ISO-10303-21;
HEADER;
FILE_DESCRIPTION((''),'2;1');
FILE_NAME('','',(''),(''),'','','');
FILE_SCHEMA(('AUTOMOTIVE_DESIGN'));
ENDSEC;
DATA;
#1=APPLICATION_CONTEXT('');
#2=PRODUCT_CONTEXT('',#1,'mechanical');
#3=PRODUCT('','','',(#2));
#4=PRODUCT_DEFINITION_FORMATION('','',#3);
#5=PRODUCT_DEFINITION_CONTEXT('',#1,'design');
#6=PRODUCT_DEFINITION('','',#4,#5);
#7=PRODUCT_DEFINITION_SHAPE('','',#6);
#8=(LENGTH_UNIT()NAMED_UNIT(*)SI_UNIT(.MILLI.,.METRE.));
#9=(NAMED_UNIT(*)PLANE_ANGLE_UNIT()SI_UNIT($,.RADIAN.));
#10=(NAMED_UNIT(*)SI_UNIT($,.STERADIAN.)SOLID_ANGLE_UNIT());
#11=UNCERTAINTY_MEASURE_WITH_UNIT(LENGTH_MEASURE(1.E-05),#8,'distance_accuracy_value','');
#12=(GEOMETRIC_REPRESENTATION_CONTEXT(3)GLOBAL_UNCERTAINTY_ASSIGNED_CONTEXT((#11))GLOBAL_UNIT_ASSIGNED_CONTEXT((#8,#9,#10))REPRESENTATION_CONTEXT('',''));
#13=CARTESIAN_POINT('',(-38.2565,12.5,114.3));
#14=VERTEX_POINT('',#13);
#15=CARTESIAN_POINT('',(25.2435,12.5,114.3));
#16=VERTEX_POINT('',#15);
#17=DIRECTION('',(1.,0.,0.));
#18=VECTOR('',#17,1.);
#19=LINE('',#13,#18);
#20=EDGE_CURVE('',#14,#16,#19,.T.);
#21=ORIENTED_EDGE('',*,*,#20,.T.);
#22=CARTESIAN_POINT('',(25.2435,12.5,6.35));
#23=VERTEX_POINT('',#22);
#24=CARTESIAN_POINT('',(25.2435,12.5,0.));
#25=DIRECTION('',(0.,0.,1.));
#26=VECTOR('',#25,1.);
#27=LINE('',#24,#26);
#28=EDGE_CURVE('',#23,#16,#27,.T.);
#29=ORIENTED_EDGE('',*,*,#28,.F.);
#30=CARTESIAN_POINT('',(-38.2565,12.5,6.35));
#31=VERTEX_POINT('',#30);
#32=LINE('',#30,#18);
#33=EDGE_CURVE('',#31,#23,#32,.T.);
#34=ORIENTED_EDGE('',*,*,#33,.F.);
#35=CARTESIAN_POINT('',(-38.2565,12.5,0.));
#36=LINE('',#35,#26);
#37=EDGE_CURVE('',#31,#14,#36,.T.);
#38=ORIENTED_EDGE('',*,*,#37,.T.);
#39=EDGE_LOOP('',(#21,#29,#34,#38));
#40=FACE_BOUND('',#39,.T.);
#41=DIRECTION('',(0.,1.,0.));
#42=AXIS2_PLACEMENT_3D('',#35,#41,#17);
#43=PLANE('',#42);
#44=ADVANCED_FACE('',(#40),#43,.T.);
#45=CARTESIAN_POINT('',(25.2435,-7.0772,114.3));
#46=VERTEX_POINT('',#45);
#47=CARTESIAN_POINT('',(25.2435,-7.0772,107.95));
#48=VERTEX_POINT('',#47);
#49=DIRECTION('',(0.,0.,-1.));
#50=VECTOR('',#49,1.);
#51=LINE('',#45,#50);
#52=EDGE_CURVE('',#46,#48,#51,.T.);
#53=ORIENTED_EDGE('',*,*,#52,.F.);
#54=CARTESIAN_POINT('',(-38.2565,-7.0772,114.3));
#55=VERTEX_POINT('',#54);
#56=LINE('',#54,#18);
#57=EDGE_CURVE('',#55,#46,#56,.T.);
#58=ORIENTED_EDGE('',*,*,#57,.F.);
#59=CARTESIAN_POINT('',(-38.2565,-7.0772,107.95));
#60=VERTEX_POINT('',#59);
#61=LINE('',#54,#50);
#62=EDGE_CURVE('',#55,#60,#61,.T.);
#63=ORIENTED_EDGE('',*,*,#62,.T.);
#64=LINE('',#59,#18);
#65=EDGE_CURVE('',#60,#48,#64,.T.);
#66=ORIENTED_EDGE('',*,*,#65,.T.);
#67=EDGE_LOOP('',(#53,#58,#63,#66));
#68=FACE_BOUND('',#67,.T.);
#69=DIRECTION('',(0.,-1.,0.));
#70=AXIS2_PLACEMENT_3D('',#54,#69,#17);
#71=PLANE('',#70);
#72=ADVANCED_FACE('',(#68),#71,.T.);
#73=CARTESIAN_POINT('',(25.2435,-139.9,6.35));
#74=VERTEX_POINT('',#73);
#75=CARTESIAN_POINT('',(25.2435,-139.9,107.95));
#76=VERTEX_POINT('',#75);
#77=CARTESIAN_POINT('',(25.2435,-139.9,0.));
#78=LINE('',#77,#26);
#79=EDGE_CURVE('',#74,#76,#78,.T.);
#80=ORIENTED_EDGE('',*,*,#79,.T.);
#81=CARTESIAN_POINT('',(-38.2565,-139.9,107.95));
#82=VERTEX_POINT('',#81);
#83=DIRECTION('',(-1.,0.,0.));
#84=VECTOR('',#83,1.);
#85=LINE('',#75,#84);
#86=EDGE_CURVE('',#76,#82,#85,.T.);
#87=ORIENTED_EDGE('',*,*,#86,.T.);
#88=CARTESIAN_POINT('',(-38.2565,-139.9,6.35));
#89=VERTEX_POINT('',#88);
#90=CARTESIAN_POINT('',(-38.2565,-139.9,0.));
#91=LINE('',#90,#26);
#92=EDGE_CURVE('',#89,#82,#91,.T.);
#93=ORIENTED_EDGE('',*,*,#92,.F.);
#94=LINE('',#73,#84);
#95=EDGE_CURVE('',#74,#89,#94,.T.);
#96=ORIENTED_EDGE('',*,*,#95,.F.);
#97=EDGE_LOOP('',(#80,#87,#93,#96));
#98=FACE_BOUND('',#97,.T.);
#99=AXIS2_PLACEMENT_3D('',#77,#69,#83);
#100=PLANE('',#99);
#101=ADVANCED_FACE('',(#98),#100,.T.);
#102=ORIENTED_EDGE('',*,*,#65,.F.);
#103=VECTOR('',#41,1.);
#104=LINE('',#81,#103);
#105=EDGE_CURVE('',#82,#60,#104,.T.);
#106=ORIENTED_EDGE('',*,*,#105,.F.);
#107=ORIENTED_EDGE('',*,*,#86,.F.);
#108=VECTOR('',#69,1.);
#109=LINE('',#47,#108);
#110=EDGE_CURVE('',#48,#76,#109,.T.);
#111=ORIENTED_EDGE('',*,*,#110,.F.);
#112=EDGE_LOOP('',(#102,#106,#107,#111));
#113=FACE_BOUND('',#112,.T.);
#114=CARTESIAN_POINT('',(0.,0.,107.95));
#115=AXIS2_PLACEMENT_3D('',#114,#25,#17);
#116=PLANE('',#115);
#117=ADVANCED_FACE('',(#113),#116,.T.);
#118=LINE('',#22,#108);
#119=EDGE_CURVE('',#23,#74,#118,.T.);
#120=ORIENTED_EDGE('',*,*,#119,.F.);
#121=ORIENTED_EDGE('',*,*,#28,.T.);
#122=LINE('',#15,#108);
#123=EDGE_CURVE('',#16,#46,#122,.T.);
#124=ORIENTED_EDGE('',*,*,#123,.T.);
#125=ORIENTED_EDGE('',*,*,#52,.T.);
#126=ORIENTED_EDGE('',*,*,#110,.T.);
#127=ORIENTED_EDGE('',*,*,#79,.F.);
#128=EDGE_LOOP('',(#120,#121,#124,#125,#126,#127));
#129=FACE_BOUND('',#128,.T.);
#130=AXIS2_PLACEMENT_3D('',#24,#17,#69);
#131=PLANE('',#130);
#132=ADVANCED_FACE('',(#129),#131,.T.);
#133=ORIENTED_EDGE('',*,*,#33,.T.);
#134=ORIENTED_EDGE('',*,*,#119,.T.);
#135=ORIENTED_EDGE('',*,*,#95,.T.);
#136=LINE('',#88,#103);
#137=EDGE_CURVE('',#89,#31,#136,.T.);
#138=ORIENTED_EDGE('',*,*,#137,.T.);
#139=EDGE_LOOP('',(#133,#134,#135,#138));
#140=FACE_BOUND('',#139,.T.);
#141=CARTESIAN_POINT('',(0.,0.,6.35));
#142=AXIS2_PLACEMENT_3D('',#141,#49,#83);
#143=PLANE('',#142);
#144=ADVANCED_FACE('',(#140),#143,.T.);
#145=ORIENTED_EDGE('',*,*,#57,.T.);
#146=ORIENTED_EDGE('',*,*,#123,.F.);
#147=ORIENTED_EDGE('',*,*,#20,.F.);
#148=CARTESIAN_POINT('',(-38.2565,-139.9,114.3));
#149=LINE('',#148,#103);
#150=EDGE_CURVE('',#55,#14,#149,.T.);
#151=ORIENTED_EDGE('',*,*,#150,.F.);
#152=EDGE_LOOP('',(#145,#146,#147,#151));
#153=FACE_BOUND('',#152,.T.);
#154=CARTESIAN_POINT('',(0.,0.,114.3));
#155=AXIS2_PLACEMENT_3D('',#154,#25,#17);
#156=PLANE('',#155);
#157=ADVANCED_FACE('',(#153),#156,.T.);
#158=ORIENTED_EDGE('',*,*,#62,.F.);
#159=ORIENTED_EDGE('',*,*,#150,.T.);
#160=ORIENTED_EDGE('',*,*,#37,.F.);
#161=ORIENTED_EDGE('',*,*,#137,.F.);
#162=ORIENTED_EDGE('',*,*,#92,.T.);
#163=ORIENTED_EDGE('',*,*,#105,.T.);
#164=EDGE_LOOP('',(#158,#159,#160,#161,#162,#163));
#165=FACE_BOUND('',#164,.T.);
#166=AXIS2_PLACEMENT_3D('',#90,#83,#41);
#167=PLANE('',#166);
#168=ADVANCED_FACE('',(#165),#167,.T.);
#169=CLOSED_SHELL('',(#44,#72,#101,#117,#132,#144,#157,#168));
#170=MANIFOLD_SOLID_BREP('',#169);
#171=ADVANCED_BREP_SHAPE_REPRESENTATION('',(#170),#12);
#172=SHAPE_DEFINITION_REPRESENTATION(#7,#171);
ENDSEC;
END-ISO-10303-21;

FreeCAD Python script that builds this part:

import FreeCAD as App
import Part
import Sketcher
Q = App.Units.Quantity


def add_polygon(sketch, points):
    """Adds a closed chain of lines whose ends are joined by coincident constraints."""
    first, n = sketch.GeometryCount, len(points)
    for a, b in zip(points, points[1:] + points[:1]):
        sketch.addGeometry(Part.LineSegment(App.Vector(*a, 0), App.Vector(*b, 0)), False)
    for i in range(n):
        sketch.addConstraint(Sketcher.Constraint("Coincident", first + i, 2, first + (i + 1) % n, 1))

doc = App.newDocument("Part")
params = doc.addObject("Spreadsheet::Sheet", "Params")
for row, (alias, value) in enumerate([
    ("sketch1_height", "6 in"),
    ("sketch1_width", "2.5 in"),
    ("pad1_length", "4.5 in"),
    ("sketch2_width", "2.5 in"),
    ("pocket1_length", "0.25 in"),
    ("sketch3_height", "6 in"),
    ("sketch3_width", "2.5 in"),
    ("pocket2_length", "0.25 in"),
], start=1):
    params.set(f"A{row}", alias)
    params.set(f"B{row}", "=" + value)
    params.setAlias(f"B{row}", alias)

body = doc.addObject("PartDesign::Body", "Body")

# Sketch on XY plane
sketch1 = body.newObject("Sketcher::SketchObject", "Sketch")
sketch1.AttachmentSupport = (doc.getObject("XY_Plane"), [""])
sketch1.MapMode = "FlatFace"
add_polygon(sketch1, [(25.2435, 12.5), (-38.2565, 12.5), (-38.2565, -139.9), (25.2435, -139.9)])  # lines 0-3
sketch1.addConstraint(Sketcher.Constraint("Horizontal", 0))
sketch1.addConstraint(Sketcher.Constraint("Vertical", 1))
sketch1.addConstraint(Sketcher.Constraint("Horizontal", 2))
sketch1.addConstraint(Sketcher.Constraint("Vertical", 3))
sketch1.addConstraint(Sketcher.Constraint("DistanceY", 1, 2, 1, 1, Q("6 in")))
sketch1.addConstraint(Sketcher.Constraint("DistanceX", 0, 2, 0, 1, Q("2.5 in")))
sketch1.addConstraint(Sketcher.Constraint("DistanceX", 0, 2, -1, 1, Q("38.2565 mm")))
sketch1.addConstraint(Sketcher.Constraint("DistanceY", -1, 1, 0, 2, Q("12.5 mm")))
sketch1.setExpression("Constraints[8]", "Params.sketch1_height")
sketch1.setExpression("Constraints[9]", "Params.sketch1_width")
pad1 = body.newObject("PartDesign::Pad", "Pad")
pad1.Profile = sketch1
pad1.setExpression("Length", "Params.pad1_length")

# Sketch on XY plane
sketch2 = body.newObject("Sketcher::SketchObject", "Sketch001")
sketch2.AttachmentSupport = (doc.getObject("XY_Plane"), [""])
sketch2.MapMode = "FlatFace"
sketch2.AttachmentOffset = App.Placement(App.Vector(0, 0, 4.5 * 25.4), App.Rotation())
add_polygon(sketch2, [(-38.2565, -7.0772), (-38.2565, -139.9), (25.2435, -139.9), (25.2435, -7.0772)])  # lines 0-3
sketch2.addConstraint(Sketcher.Constraint("Vertical", 0))
sketch2.addConstraint(Sketcher.Constraint("Horizontal", 1))
sketch2.addConstraint(Sketcher.Constraint("Vertical", 2))
sketch2.addConstraint(Sketcher.Constraint("Horizontal", 3))
sketch2.addConstraint(Sketcher.Constraint("DistanceX", 1, 1, 1, 2, Q("2.5 in")))
sketch2.addConstraint(Sketcher.Constraint("DistanceY", 0, 2, 0, 1, Q("132.8228 mm")))
sketch2.addConstraint(Sketcher.Constraint("DistanceX", 0, 2, -1, 1, Q("38.2565 mm")))
sketch2.addConstraint(Sketcher.Constraint("DistanceY", 0, 2, -1, 1, Q("139.9 mm")))
sketch2.setExpression("Constraints[8]", "Params.sketch2_width")
pocket1 = body.newObject("PartDesign::Pocket", "Pocket")
pocket1.Profile = sketch2
pocket1.setExpression("Length", "Params.pocket1_length")

# Sketch on XY plane
sketch3 = body.newObject("Sketcher::SketchObject", "Sketch002")
sketch3.AttachmentSupport = (doc.getObject("XY_Plane"), [""])
sketch3.MapMode = "FlatFace"
add_polygon(sketch3, [(-38.2565, -139.9), (-38.2565, 12.5), (25.2435, 12.5), (25.2435, -139.9)])  # lines 0-3
sketch3.addConstraint(Sketcher.Constraint("Vertical", 0))
sketch3.addConstraint(Sketcher.Constraint("Horizontal", 1))
sketch3.addConstraint(Sketcher.Constraint("Vertical", 2))
sketch3.addConstraint(Sketcher.Constraint("Horizontal", 3))
sketch3.addConstraint(Sketcher.Constraint("DistanceY", 0, 1, 0, 2, Q("6 in")))
sketch3.addConstraint(Sketcher.Constraint("DistanceX", 1, 1, 1, 2, Q("2.5 in")))
sketch3.addConstraint(Sketcher.Constraint("DistanceX", 0, 2, -1, 1, Q("38.2565 mm")))
sketch3.addConstraint(Sketcher.Constraint("DistanceY", -1, 1, 0, 2, Q("12.5 mm")))
sketch3.setExpression("Constraints[8]", "Params.sketch3_height")
sketch3.setExpression("Constraints[9]", "Params.sketch3_width")
pocket2 = body.newObject("PartDesign::Pocket", "Pocket001")
pocket2.Profile = sketch3
pocket2.setExpression("Length", "Params.pocket2_length")
pocket2.Reversed = True

doc.recompute()
